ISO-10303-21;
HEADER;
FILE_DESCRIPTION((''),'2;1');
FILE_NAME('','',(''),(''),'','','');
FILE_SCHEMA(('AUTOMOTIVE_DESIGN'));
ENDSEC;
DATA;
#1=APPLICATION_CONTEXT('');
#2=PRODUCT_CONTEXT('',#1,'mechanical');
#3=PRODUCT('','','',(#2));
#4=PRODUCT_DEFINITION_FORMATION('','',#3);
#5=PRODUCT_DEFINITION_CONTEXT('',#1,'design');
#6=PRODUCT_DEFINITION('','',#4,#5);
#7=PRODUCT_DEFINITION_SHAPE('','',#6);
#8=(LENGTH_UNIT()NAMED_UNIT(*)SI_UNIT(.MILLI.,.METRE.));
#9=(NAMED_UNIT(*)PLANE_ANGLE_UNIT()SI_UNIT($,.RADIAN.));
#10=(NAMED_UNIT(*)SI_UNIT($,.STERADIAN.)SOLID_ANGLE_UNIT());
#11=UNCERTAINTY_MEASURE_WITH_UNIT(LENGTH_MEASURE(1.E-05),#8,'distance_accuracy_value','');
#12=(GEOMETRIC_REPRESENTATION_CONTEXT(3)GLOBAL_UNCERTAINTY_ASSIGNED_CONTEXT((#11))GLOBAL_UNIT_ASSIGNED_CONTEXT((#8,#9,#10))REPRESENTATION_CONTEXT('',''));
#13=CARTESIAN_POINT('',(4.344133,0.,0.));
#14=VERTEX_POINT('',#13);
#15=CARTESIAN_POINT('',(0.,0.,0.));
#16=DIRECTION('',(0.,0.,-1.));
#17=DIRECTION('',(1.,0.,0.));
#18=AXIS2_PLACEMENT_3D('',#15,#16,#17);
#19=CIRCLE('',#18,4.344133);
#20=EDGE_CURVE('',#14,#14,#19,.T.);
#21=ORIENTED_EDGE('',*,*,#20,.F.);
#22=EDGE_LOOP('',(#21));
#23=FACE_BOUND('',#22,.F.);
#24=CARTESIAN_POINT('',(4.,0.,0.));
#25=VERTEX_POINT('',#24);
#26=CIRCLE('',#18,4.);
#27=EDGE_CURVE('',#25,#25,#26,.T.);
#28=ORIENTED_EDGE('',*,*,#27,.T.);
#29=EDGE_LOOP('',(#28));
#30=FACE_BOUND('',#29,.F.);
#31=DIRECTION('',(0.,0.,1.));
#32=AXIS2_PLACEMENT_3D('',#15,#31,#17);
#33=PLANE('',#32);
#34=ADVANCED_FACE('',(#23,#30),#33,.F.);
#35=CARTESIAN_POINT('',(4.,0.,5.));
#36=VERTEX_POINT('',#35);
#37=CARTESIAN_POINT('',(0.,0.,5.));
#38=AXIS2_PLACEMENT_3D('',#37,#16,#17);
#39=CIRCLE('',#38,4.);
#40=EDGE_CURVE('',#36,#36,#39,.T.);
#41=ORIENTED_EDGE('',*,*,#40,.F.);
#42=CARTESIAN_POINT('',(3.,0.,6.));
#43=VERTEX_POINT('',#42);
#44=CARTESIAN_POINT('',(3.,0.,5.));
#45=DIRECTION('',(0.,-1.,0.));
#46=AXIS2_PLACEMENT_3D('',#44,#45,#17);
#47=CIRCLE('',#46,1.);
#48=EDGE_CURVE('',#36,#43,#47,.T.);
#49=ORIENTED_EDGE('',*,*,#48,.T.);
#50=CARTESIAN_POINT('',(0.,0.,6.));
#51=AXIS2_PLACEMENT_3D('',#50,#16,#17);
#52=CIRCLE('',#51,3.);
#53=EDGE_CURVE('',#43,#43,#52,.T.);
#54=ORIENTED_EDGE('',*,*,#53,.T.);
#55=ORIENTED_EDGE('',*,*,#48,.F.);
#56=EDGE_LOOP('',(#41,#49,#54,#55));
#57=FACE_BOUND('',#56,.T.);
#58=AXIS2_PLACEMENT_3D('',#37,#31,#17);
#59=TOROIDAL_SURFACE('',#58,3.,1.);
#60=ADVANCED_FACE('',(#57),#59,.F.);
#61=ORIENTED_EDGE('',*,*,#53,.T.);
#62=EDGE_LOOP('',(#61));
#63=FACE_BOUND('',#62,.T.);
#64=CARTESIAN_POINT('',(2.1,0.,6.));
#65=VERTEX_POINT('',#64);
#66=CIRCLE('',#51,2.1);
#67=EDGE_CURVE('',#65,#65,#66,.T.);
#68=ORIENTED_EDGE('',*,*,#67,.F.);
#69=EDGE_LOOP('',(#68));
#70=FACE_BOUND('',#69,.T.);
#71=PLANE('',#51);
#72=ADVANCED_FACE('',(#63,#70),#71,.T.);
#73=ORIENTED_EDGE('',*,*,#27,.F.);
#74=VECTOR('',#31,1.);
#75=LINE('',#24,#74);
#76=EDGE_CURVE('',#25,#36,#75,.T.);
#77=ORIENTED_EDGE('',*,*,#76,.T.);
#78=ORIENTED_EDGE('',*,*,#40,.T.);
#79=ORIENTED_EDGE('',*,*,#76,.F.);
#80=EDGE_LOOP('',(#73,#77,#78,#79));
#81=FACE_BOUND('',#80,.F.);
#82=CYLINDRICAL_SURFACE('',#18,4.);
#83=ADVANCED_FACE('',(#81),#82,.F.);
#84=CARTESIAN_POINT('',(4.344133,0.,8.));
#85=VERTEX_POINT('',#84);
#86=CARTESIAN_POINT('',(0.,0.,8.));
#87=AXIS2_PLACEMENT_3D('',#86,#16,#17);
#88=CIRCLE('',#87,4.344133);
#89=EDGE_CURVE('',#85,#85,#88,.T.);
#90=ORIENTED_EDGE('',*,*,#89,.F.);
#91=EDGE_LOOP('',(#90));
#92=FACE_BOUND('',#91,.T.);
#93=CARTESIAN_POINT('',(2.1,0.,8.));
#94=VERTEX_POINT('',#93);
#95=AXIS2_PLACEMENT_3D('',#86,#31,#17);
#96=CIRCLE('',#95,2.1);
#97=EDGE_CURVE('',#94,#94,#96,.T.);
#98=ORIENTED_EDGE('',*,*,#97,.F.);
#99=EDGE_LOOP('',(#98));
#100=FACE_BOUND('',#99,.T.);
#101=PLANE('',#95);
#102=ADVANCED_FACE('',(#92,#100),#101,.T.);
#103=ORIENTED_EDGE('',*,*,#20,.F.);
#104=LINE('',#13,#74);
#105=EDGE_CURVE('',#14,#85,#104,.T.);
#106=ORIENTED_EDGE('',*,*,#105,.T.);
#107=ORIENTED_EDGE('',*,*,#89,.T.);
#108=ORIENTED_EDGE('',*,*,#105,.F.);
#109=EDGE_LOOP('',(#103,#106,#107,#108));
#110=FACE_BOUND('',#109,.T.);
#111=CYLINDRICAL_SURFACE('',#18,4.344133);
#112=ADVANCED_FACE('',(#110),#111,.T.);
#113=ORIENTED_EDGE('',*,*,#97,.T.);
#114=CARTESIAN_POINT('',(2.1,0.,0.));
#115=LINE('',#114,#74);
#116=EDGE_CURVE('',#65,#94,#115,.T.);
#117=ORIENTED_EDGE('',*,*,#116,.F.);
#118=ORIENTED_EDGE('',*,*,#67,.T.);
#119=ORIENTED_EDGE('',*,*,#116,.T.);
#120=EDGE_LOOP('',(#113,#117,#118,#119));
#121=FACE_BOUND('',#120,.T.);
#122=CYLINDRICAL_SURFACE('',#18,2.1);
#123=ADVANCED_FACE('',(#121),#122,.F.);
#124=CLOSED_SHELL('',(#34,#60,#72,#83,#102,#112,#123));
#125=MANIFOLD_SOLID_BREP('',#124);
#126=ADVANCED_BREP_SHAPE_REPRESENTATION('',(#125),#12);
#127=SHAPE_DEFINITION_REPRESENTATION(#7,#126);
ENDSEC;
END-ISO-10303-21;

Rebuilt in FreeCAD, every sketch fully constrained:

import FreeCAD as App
import Part
import Sketcher
Q = App.Units.Quantity


def edges_at(feature, points):
    """Names of the edges that pass closest to the given points."""
    edges = feature.Shape.Edges
    near = lambda p: min(range(len(edges)), key=lambda i: edges[i].distToShape(Part.Vertex(*p))[0])
    return sorted({f"Edge{near(p) + 1}" for p in points})


def add_polygon(sketch, points):
    """Adds a closed chain of lines whose ends are joined by coincident constraints."""
    first, n = sketch.GeometryCount, len(points)
    for a, b in zip(points, points[1:] + points[:1]):
        sketch.addGeometry(Part.LineSegment(App.Vector(*a, 0), App.Vector(*b, 0)), False)
    for i in range(n):
        sketch.addConstraint(Sketcher.Constraint("Coincident", first + i, 2, first + (i + 1) % n, 1))

doc = App.newDocument("Part")
body = doc.addObject("PartDesign::Body", "Body")

# Sketch on XY plane
sketch1 = doc.addObject("Sketcher::SketchObject", "Sketch")
body.addObject(sketch1)
sketch1.AttachmentSupport = (doc.XY_Plane, [""])
sketch1.MapMode = "FlatFace"
add_polygon(sketch1, [(-4.5, 4.5), (-4.5, -4.5), (4.5, -4.5), (4.5, 4.5)])  # lines 0-3
sketch1.addGeometry(Part.Circle(App.Vector(0, 0, 0), App.Vector(0, 0, 1), 2.1), False)  # 4
sketch1.addConstraint([
    Sketcher.Constraint("Vertical", 0),
    Sketcher.Constraint("Horizontal", 1),
    Sketcher.Constraint("Vertical", 2),
    Sketcher.Constraint("Horizontal", 3),
    Sketcher.Constraint("Coincident", 4, 3, -1, 1),
    Sketcher.Constraint("Symmetric", 0, 2, 2, 2, -1, 1),
    Sketcher.Constraint("Equal", 3, 0),
    Sketcher.Constraint("Diameter", 4, Q("4.2 mm")),
    Sketcher.Constraint("DistanceX", 1, 1, 1, 2, Q("9 mm")),
])
pad1 = doc.addObject("PartDesign::Pad", "Pad")
body.addObject(pad1)
pad1.Profile = sketch1
pad1.Length = 8

# Sketch on XY plane
sketch2 = doc.addObject("Sketcher::SketchObject", "Sketch001")
body.addObject(sketch2)
sketch2.AttachmentSupport = (doc.XY_Plane, [""])
sketch2.MapMode = "FlatFace"
sketch2.addGeometry([
    Part.Circle(App.Vector(0, 0, 0), App.Vector(0, 0, 1), 4),
    Part.Circle(App.Vector(0, 0, 0), App.Vector(0, 0, 1), 2.1),
], False)
sketch2.addConstraint([
    Sketcher.Constraint("Coincident", 0, 3, -1, 1),
    Sketcher.Constraint("Coincident", 1, 3, -1, 1),
    Sketcher.Constraint("Diameter", 0, Q("8 mm")),
    Sketcher.Constraint("Diameter", 1, Q("4.2 mm")),
])
pocket1 = doc.addObject("PartDesign::Pocket", "Pocket")
body.addObject(pocket1)
pocket1.Profile = sketch2
pocket1.Length = 6
pocket1.Reversed = True
doc.recompute()

fillet = doc.addObject("PartDesign::Fillet", "Fillet")
body.addObject(fillet)
fillet.Base = (pocket1, edges_at(pocket1, [(-4, 0, 6)]))
fillet.Radius = 1

# Sketch on XY plane
sketch3 = doc.addObject("Sketcher::SketchObject", "Sketch002")
body.addObject(sketch3)
sketch3.AttachmentSupport = (doc.XY_Plane, [""])
sketch3.MapMode = "FlatFace"
sketch3.addGeometry([
    Part.Circle(App.Vector(0, 0, 0), App.Vector(0, 0, 1), 6.99571),
    Part.Circle(App.Vector(0, 0, 0), App.Vector(0, 0, 1), 4.344133),
], False)
sketch3.addConstraint([
    Sketcher.Constraint("Coincident", 0, 3, -1, 1),
    Sketcher.Constraint("Coincident", 1, 3, -1, 1),
    Sketcher.Constraint("Diameter", 0, Q("13.99142 mm")),
    Sketcher.Constraint("Diameter", 1, Q("8.688267 mm")),
])
pocket2 = doc.addObject("PartDesign::Pocket", "Pocket001")
body.addObject(pocket2)
pocket2.Profile = sketch3
pocket2.Length = 25
pocket2.Reversed = True

doc.recompute()
